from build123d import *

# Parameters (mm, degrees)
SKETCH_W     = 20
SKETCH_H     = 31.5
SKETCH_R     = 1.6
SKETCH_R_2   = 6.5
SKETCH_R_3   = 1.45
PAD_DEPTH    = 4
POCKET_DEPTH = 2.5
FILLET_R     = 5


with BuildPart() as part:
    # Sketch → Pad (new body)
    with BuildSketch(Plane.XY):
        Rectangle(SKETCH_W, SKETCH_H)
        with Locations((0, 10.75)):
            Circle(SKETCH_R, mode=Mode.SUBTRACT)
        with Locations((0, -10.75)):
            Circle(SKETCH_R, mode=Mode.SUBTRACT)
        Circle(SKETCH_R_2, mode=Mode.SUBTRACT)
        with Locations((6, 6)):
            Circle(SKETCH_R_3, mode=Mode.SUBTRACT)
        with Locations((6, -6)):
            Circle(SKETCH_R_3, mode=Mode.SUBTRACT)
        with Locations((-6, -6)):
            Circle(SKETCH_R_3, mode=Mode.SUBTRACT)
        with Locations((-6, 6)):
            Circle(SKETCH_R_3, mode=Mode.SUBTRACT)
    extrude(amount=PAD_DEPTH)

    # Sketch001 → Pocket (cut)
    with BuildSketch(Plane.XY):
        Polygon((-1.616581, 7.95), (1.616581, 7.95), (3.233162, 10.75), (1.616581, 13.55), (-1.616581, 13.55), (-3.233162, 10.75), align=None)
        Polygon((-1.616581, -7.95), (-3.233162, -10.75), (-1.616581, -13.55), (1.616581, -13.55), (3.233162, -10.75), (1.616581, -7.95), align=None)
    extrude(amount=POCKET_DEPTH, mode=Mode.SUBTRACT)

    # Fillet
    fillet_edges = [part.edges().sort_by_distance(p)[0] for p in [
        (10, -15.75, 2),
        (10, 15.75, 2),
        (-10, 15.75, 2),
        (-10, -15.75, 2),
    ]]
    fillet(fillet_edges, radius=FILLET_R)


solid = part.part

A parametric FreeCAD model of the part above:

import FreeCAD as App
import Part
import Sketcher

V = App.Vector
Q = App.Units.Quantity


def edges_at(feature, points):
    """Names of the edges that pass closest to the given points."""
    edges = feature.Shape.Edges
    near = lambda p: min(range(len(edges)), key=lambda i: edges[i].distToShape(Part.Vertex(*p))[0])
    return sorted({f"Edge{near(p) + 1}" for p in points})

doc = App.newDocument("Part")
body = doc.addObject("PartDesign::Body", "Body")

sketch1 = body.newObject("Sketcher::SketchObject", "Sketch")
sketch1.AttachmentSupport = (doc.getObject("XY_Plane"), [""])
sketch1.MapMode = "FlatFace"
sketch1.addGeometry([
    Part.LineSegment(V(-10, 15.8, 0), V(-10, -15.8, 0)),
    Part.LineSegment(V(-10, -15.8, 0), V(10, -15.8, 0)),
    Part.LineSegment(V(10, -15.8, 0), V(10, 15.8, 0)),
    Part.LineSegment(V(10, 15.8, 0), V(-10, 15.8, 0)),
    Part.Circle(V(-6, -6, 0), V(0, 0, 1), 1.4),
    Part.Circle(V(0, -10.8, 0), V(0, 0, 1), 1.6),
    Part.Circle(V(6, -6, 0), V(0, 0, 1), 1.4),
    Part.Circle(V(-6, 6, 0), V(0, 0, 1), 1.4),
    Part.Circle(V(0, 0, 0), V(0, 0, 1), 6.5),
    Part.Circle(V(6, 6, 0), V(0, 0, 1), 1.4),
    Part.Circle(V(0, 10.8, 0), V(0, 0, 1), 1.6),
], False)
sketch1.addConstraint([
    Sketcher.Constraint("Coincident", 0, 2, 1, 1),
    Sketcher.Constraint("Coincident", 1, 2, 2, 1),
    Sketcher.Constraint("Coincident", 2, 2, 3, 1),
    Sketcher.Constraint("Coincident", 3, 2, 0, 1),
    Sketcher.Constraint("Vertical", 0),
    Sketcher.Constraint("Horizontal", 1),
    Sketcher.Constraint("Vertical", 2),
    Sketcher.Constraint("Horizontal", 3),
    Sketcher.Constraint("Coincident", 8, 3, -1, 1),
    Sketcher.Constraint("Equal", 4, 6),
    Sketcher.Constraint("Equal", 6, 7),
    Sketcher.Constraint("Equal", 7, 9),
    Sketcher.Constraint("Equal", 5, 10),
    Sketcher.Constraint("Symmetric", 6, 3, 7, 3, -1, 1),
    Sketcher.Constraint("Symmetric", 4, 3, 9, 3, -1, 1),
    Sketcher.Constraint("Symmetric", 5, 3, 10, 3, -1, 1),
    Sketcher.Constraint("Symmetric", 0, 2, 2, 2, -1, 1),
    Sketcher.Constraint("Symmetric", 4, 3, 6, 3, -2),
    Sketcher.Constraint("PointOnObject", 5, 3, -2),
    Sketcher.Constraint("Diameter", 8, 13.0),
    Sketcher.Constraint("Diameter", 4, 2.9),
    Sketcher.Constraint("Diameter", 5, 3.2),
    Sketcher.Constraint("DistanceX", 1, 1, 1, 2, 20.0),
    Sketcher.Constraint("DistanceY", 0, 2, 0, 1, 31.5),
    Sketcher.Constraint("DistanceX", 4, 3, -1, 1, 6.0),
    Sketcher.Constraint("DistanceY", 4, 3, -1, 1, 6.0),
    Sketcher.Constraint("DistanceY", 0, 2, 5, 3, 5.0),
])
pad1 = body.newObject("PartDesign::Pad", "Pad")
pad1.Profile = sketch1
pad1.Length = 4

sketch2 = body.newObject("Sketcher::SketchObject", "Sketch001")
sketch2.AttachmentSupport = (doc.getObject("XY_Plane"), [""])
sketch2.MapMode = "FlatFace"
sketch2.addGeometry([
    Part.LineSegment(V(-1.6, 8, 0), V(1.6, 8, 0)),
    Part.LineSegment(V(1.6, 8, 0), V(3.2, 10.8, 0)),
    Part.LineSegment(V(3.2, 10.8, 0), V(1.6, 13.6, 0)),
    Part.LineSegment(V(1.6, 13.6, 0), V(-1.6, 13.6, 0)),
    Part.LineSegment(V(-1.6, 13.6, 0), V(-3.2, 10.8, 0)),
    Part.LineSegment(V(-3.2, 10.8, 0), V(-1.6, 8, 0)),
    Part.LineSegment(V(-1.6, -8, 0), V(-3.2, -10.8, 0)),
    Part.LineSegment(V(-3.2, -10.8, 0), V(-1.6, -13.6, 0)),
    Part.LineSegment(V(-1.6, -13.6, 0), V(1.6, -13.6, 0)),
    Part.LineSegment(V(1.6, -13.6, 0), V(3.2, -10.8, 0)),
    Part.LineSegment(V(3.2, -10.8, 0), V(1.6, -8, 0)),
    Part.LineSegment(V(1.6, -8, 0), V(-1.6, -8, 0)),
], False)
sketch2.addConstraint([
    Sketcher.Constraint("Coincident", 0, 2, 1, 1),
    Sketcher.Constraint("Coincident", 1, 2, 2, 1),
    Sketcher.Constraint("Coincident", 2, 2, 3, 1),
    Sketcher.Constraint("Coincident", 3, 2, 4, 1),
    Sketcher.Constraint("Coincident", 4, 2, 5, 1),
    Sketcher.Constraint("Coincident", 5, 2, 0, 1),
    Sketcher.Constraint("Coincident", 6, 2, 7, 1),
    Sketcher.Constraint("Coincident", 7, 2, 8, 1),
    Sketcher.Constraint("Coincident", 8, 2, 9, 1),
    Sketcher.Constraint("Coincident", 9, 2, 10, 1),
    Sketcher.Constraint("Coincident", 10, 2, 11, 1),
    Sketcher.Constraint("Coincident", 11, 2, 6, 1),
    Sketcher.Constraint("Horizontal", 0),
    Sketcher.Constraint("Horizontal", 3),
    Sketcher.Constraint("Horizontal", 8),
    Sketcher.Constraint("Horizontal", 11),
    Sketcher.Constraint("Symmetric", 1, 2, 6, 2, -1, 1),
    Sketcher.Constraint("Symmetric", 2, 2, 7, 2, -1, 1),
    Sketcher.Constraint("Symmetric", 4, 2, 9, 2, -1, 1),
    Sketcher.Constraint("Symmetric", 5, 2, 10, 2, -1, 1),
    Sketcher.Constraint("Symmetric", 1, 2, 4, 2, -2),
    Sketcher.Constraint("Parallel", 1, 4),
    Sketcher.Constraint("Parallel", 2, 5),
    Sketcher.Constraint("Parallel", 4, 6),
    Sketcher.Constraint("Parallel", 6, 9),
    Sketcher.Constraint("Vertical", 0, 2, 2, 2),
    Sketcher.Constraint("Vertical", 3, 2, 5, 2),
    Sketcher.Constraint("Angle", 1, Q("59.999996 deg")),
    Sketcher.Constraint("DistanceY", 0, 2, 1, 2, 2.8),
    Sketcher.Constraint("DistanceY", 6, 2, 5, 2, 18.7),
    Sketcher.Constraint("DistanceX", 0, 1, 0, 2, 3.233162),
])
pocket1 = body.newObject("PartDesign::Pocket", "Pocket")
pocket1.Profile = sketch2
pocket1.Length = 2.5
pocket1.Reversed = True
doc.recompute()

fillet = body.newObject("PartDesign::Fillet", "Fillet")
fillet.Base = (pocket1, edges_at(pocket1, [
    (10, -15.75, 2),
    (10, 15.75, 2),
    (-10, 15.75, 2),
    (-10, -15.75, 2),
]))
fillet.Radius = 5

doc.recompute()
